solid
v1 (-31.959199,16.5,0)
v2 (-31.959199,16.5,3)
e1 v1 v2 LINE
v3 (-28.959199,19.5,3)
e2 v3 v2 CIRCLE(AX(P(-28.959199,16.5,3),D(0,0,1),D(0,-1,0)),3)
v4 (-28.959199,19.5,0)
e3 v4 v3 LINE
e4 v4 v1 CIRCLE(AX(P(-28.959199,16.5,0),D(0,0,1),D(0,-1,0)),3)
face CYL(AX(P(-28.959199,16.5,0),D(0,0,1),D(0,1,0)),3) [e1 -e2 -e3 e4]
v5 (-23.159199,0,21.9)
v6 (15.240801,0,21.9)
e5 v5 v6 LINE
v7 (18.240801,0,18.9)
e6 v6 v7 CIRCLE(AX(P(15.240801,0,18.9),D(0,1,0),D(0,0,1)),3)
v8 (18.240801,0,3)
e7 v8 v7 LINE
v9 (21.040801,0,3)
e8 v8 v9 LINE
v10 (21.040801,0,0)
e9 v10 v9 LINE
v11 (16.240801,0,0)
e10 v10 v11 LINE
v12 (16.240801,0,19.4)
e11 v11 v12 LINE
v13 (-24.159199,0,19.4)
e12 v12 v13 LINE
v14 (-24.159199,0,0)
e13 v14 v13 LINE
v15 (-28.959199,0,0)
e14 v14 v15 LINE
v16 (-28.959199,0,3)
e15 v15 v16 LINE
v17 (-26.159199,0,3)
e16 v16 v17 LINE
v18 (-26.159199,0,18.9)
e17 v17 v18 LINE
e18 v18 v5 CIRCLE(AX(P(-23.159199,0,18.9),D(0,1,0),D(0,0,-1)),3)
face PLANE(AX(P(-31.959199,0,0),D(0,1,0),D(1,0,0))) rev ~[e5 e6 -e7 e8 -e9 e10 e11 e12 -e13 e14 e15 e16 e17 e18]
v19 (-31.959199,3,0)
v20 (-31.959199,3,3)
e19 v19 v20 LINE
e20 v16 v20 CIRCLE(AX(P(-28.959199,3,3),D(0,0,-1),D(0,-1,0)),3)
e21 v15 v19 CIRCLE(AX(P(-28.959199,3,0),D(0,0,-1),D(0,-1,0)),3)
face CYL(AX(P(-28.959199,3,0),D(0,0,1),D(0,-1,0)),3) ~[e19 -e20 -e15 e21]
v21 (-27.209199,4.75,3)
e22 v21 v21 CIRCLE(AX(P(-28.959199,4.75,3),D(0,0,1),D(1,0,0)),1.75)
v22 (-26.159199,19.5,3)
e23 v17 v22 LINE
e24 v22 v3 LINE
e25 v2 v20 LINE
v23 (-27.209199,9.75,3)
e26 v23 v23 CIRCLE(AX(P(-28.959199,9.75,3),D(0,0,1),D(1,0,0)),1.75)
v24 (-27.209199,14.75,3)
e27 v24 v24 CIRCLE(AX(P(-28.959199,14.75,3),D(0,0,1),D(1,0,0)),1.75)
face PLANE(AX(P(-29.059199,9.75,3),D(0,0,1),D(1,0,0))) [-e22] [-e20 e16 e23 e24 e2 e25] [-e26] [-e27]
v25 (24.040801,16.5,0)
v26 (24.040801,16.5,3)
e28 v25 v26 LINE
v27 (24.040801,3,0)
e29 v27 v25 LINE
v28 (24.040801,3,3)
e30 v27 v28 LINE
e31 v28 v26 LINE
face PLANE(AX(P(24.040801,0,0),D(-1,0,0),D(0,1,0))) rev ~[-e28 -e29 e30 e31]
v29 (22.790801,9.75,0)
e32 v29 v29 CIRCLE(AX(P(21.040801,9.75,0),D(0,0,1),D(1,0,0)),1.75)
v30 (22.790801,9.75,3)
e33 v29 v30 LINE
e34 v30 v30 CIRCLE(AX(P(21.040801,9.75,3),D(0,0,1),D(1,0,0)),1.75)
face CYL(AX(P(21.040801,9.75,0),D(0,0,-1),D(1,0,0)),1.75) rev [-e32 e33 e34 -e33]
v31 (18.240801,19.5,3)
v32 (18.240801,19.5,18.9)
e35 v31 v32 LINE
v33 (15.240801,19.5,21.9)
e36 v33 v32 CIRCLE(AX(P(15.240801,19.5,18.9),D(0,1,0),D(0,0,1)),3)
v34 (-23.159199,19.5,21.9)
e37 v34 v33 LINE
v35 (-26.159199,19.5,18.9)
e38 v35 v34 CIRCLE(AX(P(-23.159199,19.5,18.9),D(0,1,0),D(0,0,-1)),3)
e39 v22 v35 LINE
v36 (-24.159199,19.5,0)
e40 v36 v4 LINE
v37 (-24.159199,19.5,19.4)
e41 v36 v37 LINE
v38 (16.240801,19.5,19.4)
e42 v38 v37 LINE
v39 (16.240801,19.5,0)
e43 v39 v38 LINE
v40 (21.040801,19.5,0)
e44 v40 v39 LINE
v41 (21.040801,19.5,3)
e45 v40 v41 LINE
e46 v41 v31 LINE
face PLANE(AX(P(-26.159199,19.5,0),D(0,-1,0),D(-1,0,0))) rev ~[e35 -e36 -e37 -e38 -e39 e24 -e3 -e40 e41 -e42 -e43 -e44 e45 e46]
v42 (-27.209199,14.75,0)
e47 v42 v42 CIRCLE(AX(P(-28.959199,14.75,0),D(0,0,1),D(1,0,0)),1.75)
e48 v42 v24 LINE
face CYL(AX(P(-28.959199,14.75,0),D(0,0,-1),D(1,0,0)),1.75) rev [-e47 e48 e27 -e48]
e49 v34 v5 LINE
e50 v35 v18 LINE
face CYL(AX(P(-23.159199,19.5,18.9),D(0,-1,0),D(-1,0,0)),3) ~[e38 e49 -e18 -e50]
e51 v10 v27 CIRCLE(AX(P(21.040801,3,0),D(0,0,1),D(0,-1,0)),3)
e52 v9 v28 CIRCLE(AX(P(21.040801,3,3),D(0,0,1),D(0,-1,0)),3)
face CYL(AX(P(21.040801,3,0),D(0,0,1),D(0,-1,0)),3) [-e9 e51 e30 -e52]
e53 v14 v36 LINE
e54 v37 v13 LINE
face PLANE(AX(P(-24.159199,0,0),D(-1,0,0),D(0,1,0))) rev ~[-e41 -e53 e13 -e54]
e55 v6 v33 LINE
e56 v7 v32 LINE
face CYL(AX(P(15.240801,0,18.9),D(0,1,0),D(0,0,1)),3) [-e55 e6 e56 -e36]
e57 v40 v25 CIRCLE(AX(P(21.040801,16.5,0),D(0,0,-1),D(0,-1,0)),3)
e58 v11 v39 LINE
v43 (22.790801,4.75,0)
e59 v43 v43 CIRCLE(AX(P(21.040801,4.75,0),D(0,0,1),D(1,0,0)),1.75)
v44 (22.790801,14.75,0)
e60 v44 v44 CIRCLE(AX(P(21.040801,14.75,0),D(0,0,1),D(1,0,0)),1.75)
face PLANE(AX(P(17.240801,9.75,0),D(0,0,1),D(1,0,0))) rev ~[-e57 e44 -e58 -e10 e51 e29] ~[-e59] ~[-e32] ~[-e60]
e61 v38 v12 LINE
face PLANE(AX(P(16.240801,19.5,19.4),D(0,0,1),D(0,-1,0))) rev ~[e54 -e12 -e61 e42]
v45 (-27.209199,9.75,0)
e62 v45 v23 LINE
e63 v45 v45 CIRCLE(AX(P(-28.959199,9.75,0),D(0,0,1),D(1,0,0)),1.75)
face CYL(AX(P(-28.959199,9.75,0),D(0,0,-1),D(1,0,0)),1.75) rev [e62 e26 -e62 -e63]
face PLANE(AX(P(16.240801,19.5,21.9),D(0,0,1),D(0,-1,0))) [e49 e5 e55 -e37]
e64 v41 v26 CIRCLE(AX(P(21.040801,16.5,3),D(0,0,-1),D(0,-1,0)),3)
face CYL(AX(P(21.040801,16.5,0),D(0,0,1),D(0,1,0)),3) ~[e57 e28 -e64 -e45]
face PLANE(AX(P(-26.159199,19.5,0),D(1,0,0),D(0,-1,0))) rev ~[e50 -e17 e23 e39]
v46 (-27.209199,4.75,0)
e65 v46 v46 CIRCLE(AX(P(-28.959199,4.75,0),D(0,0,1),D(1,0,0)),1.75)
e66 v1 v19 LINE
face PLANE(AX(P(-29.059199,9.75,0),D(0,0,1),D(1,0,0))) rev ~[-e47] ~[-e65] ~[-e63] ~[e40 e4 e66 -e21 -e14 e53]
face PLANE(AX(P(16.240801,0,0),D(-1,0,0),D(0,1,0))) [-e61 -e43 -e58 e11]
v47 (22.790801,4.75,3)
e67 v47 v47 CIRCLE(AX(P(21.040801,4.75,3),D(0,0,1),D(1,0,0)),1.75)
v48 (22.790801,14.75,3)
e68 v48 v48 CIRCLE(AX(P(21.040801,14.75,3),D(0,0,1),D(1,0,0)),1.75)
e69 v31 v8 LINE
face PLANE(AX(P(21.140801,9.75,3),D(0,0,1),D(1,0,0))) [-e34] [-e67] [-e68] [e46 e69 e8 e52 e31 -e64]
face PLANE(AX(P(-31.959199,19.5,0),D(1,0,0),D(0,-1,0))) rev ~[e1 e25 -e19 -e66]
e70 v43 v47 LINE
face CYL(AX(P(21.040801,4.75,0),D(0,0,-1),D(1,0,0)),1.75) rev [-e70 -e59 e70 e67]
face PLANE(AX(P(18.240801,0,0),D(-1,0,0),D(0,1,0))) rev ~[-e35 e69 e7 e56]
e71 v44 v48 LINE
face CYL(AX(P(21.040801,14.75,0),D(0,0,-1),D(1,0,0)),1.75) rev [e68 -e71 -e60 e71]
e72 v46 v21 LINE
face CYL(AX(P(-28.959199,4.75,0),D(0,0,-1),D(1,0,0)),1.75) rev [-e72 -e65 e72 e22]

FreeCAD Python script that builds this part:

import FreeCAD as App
import Part
import Sketcher


def edges_at(feature, points):
    """Names of the edges that pass closest to the given points."""
    edges = feature.Shape.Edges
    near = lambda p: min(range(len(edges)), key=lambda i: edges[i].distToShape(Part.Vertex(*p))[0])
    return sorted({f"Edge{near(p) + 1}" for p in points})


def add_polygon(sketch, points):
    """Adds a closed chain of lines whose ends are joined by coincident constraints."""
    first, n = sketch.GeometryCount, len(points)
    for a, b in zip(points, points[1:] + points[:1]):
        sketch.addGeometry(Part.LineSegment(App.Vector(*a, 0), App.Vector(*b, 0)), False)
    for i in range(n):
        sketch.addConstraint(Sketcher.Constraint("Coincident", first + i, 2, first + (i + 1) % n, 1))

doc = App.newDocument("Part")
body = doc.addObject("PartDesign::Body", "Body")
body.AllowCompound = True

sketch1 = doc.addObject("Sketcher::SketchObject", "Sketch")
body.addObject(sketch1)
sketch1.AttachmentSupport = (doc.XY_Plane, [""])
sketch1.MapMode = "FlatFace"
add_polygon(sketch1, [(-24.2, 0), (-24.2, 19.5), (-26.2, 19.5), (-26.2, 0)])
add_polygon(sketch1, [(16.2, 19.5), (16.2, 0), (18.2, 0), (18.2, 19.5)])
sketch1.addConstraint([
    Sketcher.Constraint("Vertical", 0),
    Sketcher.Constraint("Horizontal", 1),
    Sketcher.Constraint("Vertical", 2),
    Sketcher.Constraint("Horizontal", 3),
    Sketcher.Constraint("Vertical", 4),
    Sketcher.Constraint("Horizontal", 5),
    Sketcher.Constraint("Vertical", 6),
    Sketcher.Constraint("Horizontal", 7),
    Sketcher.Constraint("PointOnObject", 2, 2, -1),
    Sketcher.Constraint("PointOnObject", 4, 2, -1),
    Sketcher.Constraint("Horizontal", 1, 2, 6, 2),
    Sketcher.Constraint("Equal", 3, 5),
    Sketcher.Constraint("DistanceX", 1, 2, 1, 1, 2.0),
    Sketcher.Constraint("DistanceY", 0, 1, 0, 2, 19.5),
    Sketcher.Constraint("DistanceX", 3, 2, 4, 2, 40.4),
    Sketcher.Constraint("DistanceX", 0, 2, -1, 1, 24.159199),
])
pad1 = doc.addObject("PartDesign::Pad", "Pad")
body.addObject(pad1)
pad1.Profile = sketch1
pad1.Length = 21.9

sketch2 = doc.addObject("Sketcher::SketchObject", "Sketch001")
body.addObject(sketch2)
sketch2.AttachmentSupport = (doc.YZ_Plane, [""])
sketch2.MapMode = "FlatFace"
sketch2.AttachmentOffset = App.Placement(App.Vector(0, 0, 16.240801), App.Rotation())
add_polygon(sketch2, [(19.5, 21.9), (19.5, 19.4), (0, 19.4), (0, 21.9)])
sketch2.addConstraint([
    Sketcher.Constraint("Vertical", 0),
    Sketcher.Constraint("Horizontal", 1),
    Sketcher.Constraint("Vertical", 2),
    Sketcher.Constraint("Horizontal", 3),
    Sketcher.Constraint("PointOnObject", 1, 2, -2),
    Sketcher.Constraint("DistanceX", 1, 2, 1, 1, 19.5),
    Sketcher.Constraint("DistanceY", 0, 2, 0, 1, 2.5),
    Sketcher.Constraint("DistanceY", -1, 1, 0, 2, 19.4),
])
pad2 = doc.addObject("PartDesign::Pad", "Pad001")
body.addObject(pad2)
pad2.Profile = sketch2
pad2.Type = "UpToLast"
pad2.Reversed = True

sketch3 = doc.addObject("Sketcher::SketchObject", "Sketch002")
body.addObject(sketch3)
sketch3.AttachmentSupport = (doc.XY_Plane, [""])
sketch3.MapMode = "FlatFace"
add_polygon(sketch3, [(-26.2, 19.5), (-32, 19.5), (-32, 0), (-26.2, 0)])
sketch3.addGeometry(Part.Circle(App.Vector(-29, 4.8, 0), App.Vector(0, 0, 1), 1.8), False)
sketch3.addGeometry(Part.Circle(App.Vector(-29, 9.8, 0), App.Vector(0, 0, 1), 1.8), False)
sketch3.addGeometry(Part.Circle(App.Vector(-29, 14.8, 0), App.Vector(0, 0, 1), 1.8), False)
add_polygon(sketch3, [(18.2, 19.5), (18.2, 0), (24, 0), (24, 19.5)])
sketch3.addGeometry(Part.Circle(App.Vector(21, 4.8, 0), App.Vector(0, 0, 1), 1.8), False)
sketch3.addGeometry(Part.Circle(App.Vector(21, 9.8, 0), App.Vector(0, 0, 1), 1.8), False)
sketch3.addGeometry(Part.Circle(App.Vector(21, 14.8, 0), App.Vector(0, 0, 1), 1.8), False)
sketch3.addConstraint([
    Sketcher.Constraint("Horizontal", 0),
    Sketcher.Constraint("Vertical", 1),
    Sketcher.Constraint("Horizontal", 2),
    Sketcher.Constraint("Vertical", 3),
    Sketcher.Constraint("Vertical", 7),
    Sketcher.Constraint("Horizontal", 8),
    Sketcher.Constraint("Vertical", 9),
    Sketcher.Constraint("Horizontal", 10),
    Sketcher.Constraint("Equal", 4, 5),
    Sketcher.Constraint("Equal", 5, 6),
    Sketcher.Constraint("Equal", 6, 11),
    Sketcher.Constraint("Equal", 11, 12),
    Sketcher.Constraint("Equal", 12, 13),
    Sketcher.Constraint("PointOnObject", 1, 2, -1),
    Sketcher.Constraint("PointOnObject", 7, 2, -1),
    Sketcher.Constraint("Horizontal", 4, 3, 11, 3),
    Sketcher.Constraint("Horizontal", 5, 3, 12, 3),
    Sketcher.Constraint("Horizontal", 6, 3, 13, 3),
    Sketcher.Constraint("Horizontal", 3, 2, 9, 2),
    Sketcher.Constraint("Vertical", 4, 3, 5, 3),
    Sketcher.Constraint("Vertical", 5, 3, 6, 3),
    Sketcher.Constraint("Vertical", 11, 3, 12, 3),
    Sketcher.Constraint("Vertical", 12, 3, 13, 3),
    Sketcher.Constraint("Equal", 2, 8),
    Sketcher.Constraint("Diameter", 4, 3.5),
    Sketcher.Constraint("DistanceX", 0, 2, 0, 1, 5.8),
    Sketcher.Constraint("DistanceY", 1, 2, 1, 1, 19.5),
    Sketcher.Constraint("DistanceY", 4, 3, 5, 3, 5.0),
    Sketcher.Constraint("DistanceY", 5, 3, 6, 3, 5.0),
    Sketcher.Constraint("DistanceX", 4, 3, 11, 3, 50.0),
    Sketcher.Constraint("DistanceX", 0, 2, 6, 3, 3.0),
    Sketcher.Constraint("DistanceX", 11, 3, 8, 2, 3.0),
    Sketcher.Constraint("DistanceY", -1, 1, 4, 3, 4.75),
    Sketcher.Constraint("DistanceX", 4, 3, -1, 1, 28.959199),
])
pad3 = doc.addObject("PartDesign::Pad", "Pad002")
body.addObject(pad3)
pad3.Profile = sketch3
pad3.Length = 3
doc.recompute()

fillet = doc.addObject("PartDesign::Fillet", "Fillet")
body.addObject(fillet)
fillet.Base = (pad3, edges_at(pad3, [
    (18.241, 9.75, 21.9),
    (-26.159, 9.75, 21.9),
    (24.041, 0, 1.5),
    (24.041, 19.5, 1.5),
    (-31.959, 19.5, 1.5),
    (-31.959, 0, 1.5),
]))
fillet.Radius = 3

doc.recompute()
